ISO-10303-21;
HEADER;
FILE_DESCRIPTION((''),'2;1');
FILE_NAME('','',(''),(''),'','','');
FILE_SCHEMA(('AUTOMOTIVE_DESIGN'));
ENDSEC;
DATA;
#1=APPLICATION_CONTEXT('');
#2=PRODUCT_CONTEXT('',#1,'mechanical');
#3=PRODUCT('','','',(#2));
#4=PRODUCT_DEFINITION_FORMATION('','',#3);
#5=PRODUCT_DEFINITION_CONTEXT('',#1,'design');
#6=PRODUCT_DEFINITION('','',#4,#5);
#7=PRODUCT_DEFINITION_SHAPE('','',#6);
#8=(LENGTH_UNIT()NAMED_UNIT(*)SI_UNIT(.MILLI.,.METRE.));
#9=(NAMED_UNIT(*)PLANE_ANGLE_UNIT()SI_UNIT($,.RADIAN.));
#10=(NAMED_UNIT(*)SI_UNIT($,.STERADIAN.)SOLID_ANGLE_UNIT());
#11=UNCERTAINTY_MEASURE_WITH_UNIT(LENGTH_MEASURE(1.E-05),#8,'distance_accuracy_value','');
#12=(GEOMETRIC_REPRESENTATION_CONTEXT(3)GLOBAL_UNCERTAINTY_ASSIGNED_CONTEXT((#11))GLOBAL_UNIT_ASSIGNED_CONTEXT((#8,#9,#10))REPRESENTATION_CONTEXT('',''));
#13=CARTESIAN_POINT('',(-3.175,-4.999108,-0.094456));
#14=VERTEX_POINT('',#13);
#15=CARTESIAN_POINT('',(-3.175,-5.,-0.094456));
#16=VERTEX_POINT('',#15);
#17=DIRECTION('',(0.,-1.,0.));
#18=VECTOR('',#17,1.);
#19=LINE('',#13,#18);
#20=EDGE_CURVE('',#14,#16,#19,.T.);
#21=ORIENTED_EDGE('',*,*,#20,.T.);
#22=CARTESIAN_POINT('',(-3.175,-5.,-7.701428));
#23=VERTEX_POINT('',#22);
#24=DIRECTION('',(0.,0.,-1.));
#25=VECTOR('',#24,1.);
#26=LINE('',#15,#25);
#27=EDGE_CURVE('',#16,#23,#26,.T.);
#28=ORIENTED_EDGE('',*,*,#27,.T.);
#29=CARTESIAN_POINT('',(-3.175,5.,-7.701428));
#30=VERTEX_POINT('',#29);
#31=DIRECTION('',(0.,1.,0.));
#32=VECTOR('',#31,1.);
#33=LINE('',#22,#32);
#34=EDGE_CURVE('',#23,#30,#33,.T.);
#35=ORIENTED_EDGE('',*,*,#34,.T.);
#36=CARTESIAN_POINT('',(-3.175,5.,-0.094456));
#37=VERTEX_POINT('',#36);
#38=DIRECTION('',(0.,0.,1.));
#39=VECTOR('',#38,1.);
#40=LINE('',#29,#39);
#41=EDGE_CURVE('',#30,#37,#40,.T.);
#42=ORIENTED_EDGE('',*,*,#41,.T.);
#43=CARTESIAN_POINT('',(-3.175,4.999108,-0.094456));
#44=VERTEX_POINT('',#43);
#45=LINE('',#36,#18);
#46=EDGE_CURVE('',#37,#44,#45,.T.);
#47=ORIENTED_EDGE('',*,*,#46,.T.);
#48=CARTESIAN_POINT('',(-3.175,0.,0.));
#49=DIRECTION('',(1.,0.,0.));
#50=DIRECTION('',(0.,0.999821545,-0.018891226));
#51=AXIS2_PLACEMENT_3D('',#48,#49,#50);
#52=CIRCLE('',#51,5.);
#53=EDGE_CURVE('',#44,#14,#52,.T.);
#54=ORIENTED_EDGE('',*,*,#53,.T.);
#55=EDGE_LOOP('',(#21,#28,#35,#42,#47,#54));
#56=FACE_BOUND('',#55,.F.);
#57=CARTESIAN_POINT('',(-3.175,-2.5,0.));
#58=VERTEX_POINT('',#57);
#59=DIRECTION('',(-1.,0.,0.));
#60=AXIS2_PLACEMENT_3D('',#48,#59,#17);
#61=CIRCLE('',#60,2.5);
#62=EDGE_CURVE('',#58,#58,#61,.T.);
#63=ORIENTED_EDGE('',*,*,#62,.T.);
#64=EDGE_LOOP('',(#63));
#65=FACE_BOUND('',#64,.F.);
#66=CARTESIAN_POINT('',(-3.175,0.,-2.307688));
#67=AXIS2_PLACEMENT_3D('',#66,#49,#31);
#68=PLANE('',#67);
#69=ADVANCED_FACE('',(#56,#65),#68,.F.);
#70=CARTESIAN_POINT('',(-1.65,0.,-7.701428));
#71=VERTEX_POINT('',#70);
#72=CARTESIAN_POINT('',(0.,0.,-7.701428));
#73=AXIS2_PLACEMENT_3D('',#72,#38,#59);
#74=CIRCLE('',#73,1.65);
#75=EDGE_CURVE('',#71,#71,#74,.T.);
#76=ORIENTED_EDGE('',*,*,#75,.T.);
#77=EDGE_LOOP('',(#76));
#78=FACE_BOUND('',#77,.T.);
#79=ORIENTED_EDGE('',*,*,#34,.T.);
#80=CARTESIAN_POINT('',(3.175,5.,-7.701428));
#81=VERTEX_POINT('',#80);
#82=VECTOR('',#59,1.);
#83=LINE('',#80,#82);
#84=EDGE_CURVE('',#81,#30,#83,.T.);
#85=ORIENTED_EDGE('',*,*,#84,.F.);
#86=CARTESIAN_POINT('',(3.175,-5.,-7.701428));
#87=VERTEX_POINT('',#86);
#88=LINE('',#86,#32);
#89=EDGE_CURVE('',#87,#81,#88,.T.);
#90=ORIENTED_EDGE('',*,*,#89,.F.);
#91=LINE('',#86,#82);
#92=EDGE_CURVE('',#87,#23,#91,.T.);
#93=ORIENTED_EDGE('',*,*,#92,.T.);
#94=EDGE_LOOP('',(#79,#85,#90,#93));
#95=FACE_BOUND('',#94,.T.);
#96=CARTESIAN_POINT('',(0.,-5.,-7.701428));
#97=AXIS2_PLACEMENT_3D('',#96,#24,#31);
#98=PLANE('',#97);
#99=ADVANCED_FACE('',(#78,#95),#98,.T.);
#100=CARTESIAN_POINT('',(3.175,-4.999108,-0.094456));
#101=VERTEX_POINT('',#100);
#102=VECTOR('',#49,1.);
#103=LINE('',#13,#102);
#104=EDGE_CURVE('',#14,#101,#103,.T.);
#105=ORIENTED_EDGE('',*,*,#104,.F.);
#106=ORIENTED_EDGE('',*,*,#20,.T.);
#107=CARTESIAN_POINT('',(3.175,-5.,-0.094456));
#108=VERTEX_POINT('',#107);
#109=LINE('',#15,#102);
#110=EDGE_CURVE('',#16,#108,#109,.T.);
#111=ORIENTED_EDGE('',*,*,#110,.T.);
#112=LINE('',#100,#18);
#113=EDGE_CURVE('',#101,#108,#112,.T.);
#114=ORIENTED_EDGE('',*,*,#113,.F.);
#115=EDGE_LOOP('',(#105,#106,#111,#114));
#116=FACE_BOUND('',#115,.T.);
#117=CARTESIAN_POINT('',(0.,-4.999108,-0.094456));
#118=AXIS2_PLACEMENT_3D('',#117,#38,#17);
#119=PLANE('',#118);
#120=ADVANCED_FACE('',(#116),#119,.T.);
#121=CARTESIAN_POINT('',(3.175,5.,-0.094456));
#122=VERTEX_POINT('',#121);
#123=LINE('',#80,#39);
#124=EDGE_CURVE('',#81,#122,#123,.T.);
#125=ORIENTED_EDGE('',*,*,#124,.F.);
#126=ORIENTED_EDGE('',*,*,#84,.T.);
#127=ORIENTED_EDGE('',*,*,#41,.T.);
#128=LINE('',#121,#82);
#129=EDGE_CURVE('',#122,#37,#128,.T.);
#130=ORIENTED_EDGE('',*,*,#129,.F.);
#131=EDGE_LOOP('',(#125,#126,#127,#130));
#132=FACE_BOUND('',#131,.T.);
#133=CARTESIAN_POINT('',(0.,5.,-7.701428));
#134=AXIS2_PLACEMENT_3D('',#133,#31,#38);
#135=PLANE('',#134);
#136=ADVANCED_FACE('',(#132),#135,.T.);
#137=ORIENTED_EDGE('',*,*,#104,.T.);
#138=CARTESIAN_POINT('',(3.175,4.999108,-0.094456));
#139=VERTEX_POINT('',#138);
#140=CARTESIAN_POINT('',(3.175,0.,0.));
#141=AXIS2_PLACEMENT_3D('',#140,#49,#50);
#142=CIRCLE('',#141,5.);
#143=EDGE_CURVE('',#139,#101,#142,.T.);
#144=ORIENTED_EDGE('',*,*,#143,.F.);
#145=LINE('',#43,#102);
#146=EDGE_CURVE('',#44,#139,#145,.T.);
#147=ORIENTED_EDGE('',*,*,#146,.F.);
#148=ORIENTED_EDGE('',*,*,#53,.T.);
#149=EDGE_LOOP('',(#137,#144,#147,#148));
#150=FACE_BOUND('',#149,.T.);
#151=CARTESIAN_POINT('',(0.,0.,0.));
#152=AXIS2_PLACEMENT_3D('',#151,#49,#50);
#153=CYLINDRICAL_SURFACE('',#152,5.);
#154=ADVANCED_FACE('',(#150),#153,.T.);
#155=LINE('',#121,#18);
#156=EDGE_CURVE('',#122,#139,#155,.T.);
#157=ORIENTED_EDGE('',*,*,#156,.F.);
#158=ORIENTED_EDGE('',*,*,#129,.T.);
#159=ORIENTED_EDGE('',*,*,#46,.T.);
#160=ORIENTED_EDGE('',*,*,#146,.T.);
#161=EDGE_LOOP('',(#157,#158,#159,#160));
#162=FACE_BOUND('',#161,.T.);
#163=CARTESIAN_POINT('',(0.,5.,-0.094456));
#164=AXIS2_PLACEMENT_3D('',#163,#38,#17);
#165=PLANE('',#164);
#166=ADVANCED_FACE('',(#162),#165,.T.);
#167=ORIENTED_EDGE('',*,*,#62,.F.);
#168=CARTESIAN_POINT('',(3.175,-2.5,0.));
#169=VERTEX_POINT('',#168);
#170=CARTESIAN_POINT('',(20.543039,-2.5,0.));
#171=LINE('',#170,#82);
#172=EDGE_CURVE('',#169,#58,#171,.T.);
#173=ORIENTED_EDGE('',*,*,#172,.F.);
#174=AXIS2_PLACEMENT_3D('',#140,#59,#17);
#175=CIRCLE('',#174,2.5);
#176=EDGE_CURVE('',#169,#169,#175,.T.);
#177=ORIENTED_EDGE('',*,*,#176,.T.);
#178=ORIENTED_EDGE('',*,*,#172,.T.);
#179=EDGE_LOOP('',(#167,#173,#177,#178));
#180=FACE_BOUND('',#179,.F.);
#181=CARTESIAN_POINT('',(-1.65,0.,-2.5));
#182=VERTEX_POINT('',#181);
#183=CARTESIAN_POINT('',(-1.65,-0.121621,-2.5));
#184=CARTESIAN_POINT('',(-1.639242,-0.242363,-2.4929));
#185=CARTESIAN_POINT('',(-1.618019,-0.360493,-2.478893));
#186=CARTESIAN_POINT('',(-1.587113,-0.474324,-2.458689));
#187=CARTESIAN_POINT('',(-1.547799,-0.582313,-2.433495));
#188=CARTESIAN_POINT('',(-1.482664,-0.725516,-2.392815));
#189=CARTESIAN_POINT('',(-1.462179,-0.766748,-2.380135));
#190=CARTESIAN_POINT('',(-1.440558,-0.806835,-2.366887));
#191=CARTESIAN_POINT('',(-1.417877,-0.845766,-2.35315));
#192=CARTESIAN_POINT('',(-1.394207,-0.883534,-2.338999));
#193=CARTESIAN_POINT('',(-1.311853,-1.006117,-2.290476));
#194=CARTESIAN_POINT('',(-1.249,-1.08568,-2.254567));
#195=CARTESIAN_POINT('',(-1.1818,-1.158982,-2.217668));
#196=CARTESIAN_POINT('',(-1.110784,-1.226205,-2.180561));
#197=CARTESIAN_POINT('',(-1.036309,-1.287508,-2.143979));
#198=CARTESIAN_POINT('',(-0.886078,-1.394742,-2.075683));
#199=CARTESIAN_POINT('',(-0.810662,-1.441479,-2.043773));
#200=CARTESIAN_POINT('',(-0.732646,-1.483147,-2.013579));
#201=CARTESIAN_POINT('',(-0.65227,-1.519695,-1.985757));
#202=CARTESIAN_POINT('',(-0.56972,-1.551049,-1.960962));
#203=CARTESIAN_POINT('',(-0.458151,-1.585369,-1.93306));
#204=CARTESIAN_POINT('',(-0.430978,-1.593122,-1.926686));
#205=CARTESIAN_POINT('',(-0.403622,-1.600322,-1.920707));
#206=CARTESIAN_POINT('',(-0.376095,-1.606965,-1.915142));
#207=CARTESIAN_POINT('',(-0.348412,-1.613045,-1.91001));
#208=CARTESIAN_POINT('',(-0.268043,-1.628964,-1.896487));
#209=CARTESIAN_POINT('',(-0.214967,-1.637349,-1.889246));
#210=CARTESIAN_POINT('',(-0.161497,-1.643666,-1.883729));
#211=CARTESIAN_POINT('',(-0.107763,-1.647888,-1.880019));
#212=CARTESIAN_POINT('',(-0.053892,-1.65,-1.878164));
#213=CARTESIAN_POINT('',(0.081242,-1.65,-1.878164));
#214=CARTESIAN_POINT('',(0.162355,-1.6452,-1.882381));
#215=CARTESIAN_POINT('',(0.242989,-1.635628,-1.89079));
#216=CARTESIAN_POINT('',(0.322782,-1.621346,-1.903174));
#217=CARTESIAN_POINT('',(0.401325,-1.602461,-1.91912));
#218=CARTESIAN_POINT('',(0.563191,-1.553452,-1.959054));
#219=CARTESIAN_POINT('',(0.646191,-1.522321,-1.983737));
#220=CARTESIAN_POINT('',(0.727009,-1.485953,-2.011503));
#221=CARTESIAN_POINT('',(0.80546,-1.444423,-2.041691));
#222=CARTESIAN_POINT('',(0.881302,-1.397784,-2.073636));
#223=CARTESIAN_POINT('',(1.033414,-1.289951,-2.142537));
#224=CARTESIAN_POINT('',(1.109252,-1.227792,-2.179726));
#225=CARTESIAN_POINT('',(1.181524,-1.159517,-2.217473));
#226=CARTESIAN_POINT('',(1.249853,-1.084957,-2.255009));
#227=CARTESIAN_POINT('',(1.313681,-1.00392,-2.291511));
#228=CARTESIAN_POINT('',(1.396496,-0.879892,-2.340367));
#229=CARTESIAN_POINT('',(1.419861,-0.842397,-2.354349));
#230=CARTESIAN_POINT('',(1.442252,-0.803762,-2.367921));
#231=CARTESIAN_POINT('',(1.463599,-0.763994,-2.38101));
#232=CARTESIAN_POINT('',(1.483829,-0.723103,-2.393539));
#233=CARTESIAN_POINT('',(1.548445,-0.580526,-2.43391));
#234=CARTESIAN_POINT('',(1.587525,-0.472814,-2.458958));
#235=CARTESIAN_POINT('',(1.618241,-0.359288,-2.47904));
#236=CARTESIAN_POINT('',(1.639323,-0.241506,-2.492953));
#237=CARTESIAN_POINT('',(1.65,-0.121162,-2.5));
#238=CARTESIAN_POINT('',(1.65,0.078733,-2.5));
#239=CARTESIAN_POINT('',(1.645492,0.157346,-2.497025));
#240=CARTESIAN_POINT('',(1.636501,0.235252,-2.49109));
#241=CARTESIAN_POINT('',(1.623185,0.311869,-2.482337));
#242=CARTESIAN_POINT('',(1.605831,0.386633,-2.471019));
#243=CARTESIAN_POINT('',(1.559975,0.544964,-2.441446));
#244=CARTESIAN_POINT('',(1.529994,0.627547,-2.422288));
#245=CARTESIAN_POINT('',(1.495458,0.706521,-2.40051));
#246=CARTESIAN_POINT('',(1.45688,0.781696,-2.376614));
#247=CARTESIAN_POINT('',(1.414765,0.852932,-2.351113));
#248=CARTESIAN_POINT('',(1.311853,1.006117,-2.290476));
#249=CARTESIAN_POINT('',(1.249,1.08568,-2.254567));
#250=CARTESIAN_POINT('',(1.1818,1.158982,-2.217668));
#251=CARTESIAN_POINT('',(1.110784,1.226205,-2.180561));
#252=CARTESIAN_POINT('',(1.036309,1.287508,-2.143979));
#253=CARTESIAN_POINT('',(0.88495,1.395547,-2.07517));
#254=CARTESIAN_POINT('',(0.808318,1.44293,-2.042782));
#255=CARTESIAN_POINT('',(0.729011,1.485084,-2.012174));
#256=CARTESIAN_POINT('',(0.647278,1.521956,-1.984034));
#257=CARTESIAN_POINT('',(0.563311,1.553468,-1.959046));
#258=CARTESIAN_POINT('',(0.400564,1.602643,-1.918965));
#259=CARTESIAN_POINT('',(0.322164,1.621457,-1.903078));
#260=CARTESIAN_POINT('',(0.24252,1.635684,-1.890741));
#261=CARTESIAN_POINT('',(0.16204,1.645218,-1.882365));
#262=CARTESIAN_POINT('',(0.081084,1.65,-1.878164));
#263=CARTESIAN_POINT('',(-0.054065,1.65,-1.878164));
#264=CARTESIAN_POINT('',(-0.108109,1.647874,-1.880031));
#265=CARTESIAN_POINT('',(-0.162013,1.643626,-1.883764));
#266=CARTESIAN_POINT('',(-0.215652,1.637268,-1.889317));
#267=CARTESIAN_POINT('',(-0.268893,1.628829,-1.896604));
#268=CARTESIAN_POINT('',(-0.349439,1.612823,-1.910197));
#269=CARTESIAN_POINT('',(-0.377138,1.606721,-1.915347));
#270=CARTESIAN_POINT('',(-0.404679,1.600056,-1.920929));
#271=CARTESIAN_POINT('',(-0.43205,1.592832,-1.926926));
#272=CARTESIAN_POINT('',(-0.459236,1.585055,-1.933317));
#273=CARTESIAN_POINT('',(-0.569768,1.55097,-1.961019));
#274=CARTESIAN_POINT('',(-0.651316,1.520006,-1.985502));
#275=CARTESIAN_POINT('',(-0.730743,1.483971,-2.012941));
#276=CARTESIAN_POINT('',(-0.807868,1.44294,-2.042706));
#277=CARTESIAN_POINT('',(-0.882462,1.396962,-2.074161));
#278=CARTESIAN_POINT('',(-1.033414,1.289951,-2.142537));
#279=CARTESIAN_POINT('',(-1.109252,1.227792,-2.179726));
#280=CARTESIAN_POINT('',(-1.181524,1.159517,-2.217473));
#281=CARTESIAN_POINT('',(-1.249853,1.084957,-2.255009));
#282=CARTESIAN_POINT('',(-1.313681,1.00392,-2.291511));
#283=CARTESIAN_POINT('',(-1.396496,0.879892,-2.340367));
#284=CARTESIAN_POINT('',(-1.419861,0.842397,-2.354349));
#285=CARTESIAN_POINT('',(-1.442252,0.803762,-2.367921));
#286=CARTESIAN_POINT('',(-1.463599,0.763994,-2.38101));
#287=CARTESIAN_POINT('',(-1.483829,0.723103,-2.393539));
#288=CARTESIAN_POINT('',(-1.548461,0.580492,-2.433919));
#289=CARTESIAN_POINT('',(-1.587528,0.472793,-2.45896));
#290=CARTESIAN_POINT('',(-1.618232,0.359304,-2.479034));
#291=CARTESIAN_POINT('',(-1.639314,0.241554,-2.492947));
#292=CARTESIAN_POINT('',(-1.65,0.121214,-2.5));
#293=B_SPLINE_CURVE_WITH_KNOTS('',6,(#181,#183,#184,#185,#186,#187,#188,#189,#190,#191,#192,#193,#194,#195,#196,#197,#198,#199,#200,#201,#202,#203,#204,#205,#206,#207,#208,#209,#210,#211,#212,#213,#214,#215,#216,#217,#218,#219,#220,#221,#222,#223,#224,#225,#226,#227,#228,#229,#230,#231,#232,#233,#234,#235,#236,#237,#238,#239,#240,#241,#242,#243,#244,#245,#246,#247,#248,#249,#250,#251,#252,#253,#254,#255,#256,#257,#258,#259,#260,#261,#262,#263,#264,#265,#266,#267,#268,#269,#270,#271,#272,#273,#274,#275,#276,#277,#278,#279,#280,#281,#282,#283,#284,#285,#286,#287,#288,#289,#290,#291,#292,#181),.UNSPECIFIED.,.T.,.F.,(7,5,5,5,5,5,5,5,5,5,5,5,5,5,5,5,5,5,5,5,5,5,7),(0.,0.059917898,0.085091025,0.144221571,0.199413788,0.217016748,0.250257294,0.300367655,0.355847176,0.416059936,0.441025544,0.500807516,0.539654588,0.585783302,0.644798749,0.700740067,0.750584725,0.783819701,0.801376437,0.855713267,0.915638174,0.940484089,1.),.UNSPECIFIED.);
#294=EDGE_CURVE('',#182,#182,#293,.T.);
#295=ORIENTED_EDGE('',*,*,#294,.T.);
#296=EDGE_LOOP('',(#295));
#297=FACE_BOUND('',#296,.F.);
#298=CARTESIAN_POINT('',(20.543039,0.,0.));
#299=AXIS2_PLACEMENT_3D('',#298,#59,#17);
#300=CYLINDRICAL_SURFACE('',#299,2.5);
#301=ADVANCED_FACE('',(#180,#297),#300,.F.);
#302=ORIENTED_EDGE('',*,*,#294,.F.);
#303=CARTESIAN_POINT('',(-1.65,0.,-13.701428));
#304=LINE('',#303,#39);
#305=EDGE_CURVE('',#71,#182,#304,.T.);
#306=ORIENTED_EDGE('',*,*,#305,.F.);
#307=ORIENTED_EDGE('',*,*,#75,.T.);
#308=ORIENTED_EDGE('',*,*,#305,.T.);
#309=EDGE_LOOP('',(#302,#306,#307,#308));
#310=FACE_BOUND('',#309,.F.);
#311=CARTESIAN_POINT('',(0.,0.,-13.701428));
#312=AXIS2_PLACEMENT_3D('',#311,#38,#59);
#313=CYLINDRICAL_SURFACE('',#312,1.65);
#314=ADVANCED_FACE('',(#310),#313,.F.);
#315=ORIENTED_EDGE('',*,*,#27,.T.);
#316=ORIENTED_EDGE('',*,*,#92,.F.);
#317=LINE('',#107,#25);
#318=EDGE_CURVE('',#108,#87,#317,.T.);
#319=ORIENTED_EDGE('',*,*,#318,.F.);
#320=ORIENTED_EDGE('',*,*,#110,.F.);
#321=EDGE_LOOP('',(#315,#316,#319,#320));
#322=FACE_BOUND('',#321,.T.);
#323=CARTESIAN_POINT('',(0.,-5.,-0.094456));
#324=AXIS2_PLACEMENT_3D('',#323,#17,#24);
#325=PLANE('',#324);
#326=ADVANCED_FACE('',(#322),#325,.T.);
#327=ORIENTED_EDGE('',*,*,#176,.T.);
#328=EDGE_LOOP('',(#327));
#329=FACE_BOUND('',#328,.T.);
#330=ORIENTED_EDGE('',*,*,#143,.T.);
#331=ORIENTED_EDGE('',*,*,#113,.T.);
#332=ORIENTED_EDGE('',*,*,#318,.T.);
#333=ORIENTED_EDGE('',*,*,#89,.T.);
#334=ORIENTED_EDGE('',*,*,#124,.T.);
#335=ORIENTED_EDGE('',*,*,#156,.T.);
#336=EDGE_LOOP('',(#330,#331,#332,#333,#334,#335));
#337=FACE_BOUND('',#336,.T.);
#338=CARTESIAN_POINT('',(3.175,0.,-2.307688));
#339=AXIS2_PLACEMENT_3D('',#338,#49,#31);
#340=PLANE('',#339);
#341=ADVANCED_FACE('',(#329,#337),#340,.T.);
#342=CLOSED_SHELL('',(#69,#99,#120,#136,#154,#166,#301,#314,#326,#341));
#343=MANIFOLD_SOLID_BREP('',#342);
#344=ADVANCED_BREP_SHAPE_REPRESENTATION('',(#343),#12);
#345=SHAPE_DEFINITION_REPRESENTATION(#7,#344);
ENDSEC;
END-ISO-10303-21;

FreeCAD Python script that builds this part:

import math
import FreeCAD as App
import Part
import Sketcher

V = App.Vector
Q = App.Units.Quantity

doc = App.newDocument("Part")
params = doc.addObject("Spreadsheet::Sheet", "Params")
for row, (alias, value) in enumerate([
    ("sketch1_radius", "5 mm"),
    ("sketch1_width", "10 mm"),
    ("pad1_length", "6.35 mm"),
    ("sketch2_diameter", "5 mm"),
    ("hole_diameter", "5 mm"),
    ("sketch3_diameter", "3.3 mm"),
    ("hole2_diameter", "3.3 mm"),
    ("hole2_depth", "6 mm"),
], start=1):
    params.set(f"A{row}", alias)
    params.set(f"B{row}", "=" + value)
    params.setAlias(f"B{row}", alias)

body = doc.addObject("PartDesign::Body", "Body")

sketch1 = doc.addObject("Sketcher::SketchObject", "Sketch")
body.addObject(sketch1)
sketch1.AttachmentSupport = (doc.YZ_Plane, [""])
sketch1.MapMode = "FlatFace"
sketch1.addGeometry(Part.LineSegment(V(5, -0.0945, 0), V(4.9991, -0.0945, 0)), False)
sketch1.addGeometry(Part.ArcOfCircle(Part.Circle(V(0, 0, 0), V(0, 0, 1), 5), math.radians(-1), math.radians(181)), False)
sketch1.addGeometry(Part.LineSegment(V(-4.9991, -0.0945, 0), V(-5, -0.0945, 0)), False)
sketch1.addGeometry(Part.LineSegment(V(-5, -0.0945, 0), V(-5, -7.7014, 0)), False)
sketch1.addGeometry(Part.LineSegment(V(-5, -7.7014, 0), V(5, -7.7014, 0)), False)
sketch1.addGeometry(Part.LineSegment(V(5, -7.7014, 0), V(5, -0.0945, 0)), False)
sketch1.addConstraint(Sketcher.Constraint("Coincident", 0, 2, 1, 1))
sketch1.addConstraint(Sketcher.Constraint("Coincident", 1, 2, 2, 1))
sketch1.addConstraint(Sketcher.Constraint("Coincident", 2, 2, 3, 1))
sketch1.addConstraint(Sketcher.Constraint("Coincident", 3, 2, 4, 1))
sketch1.addConstraint(Sketcher.Constraint("Coincident", 4, 2, 5, 1))
sketch1.addConstraint(Sketcher.Constraint("Coincident", 5, 2, 0, 1))
sketch1.addConstraint(Sketcher.Constraint("Horizontal", 0))
sketch1.addConstraint(Sketcher.Constraint("Horizontal", 2))
sketch1.addConstraint(Sketcher.Constraint("Vertical", 3))
sketch1.addConstraint(Sketcher.Constraint("Horizontal", 4))
sketch1.addConstraint(Sketcher.Constraint("Vertical", 5))
sketch1.addConstraint(Sketcher.Constraint("Coincident", 1, 3, -1, 1))
sketch1.addConstraint(Sketcher.Constraint("Symmetric", 2, 2, 5, 2, -2))
sketch1.addConstraint(Sketcher.Constraint("Radius", 1, Q("5 mm")))
sketch1.addConstraint(Sketcher.Constraint("DistanceX", 4, 1, 4, 2, Q("10 mm")))
sketch1.addConstraint(Sketcher.Constraint("DistanceX", 0, 2, 0, 1, Q("0.000892 mm")))
sketch1.addConstraint(Sketcher.Constraint("DistanceY", 3, 2, 3, 1, Q("7.606972 mm")))
sketch1.setExpression("Constraints[13]", "Params.sketch1_radius")
sketch1.setExpression("Constraints[14]", "Params.sketch1_width")
pad1 = doc.addObject("PartDesign::Pad", "Pad")
body.addObject(pad1)
pad1.Profile = sketch1
pad1.setExpression("Length", "Params.pad1_length")
pad1.Midplane = True

sketch2 = doc.addObject("Sketcher::SketchObject", "Sketch001")
body.addObject(sketch2)
sketch2.AttachmentSupport = (doc.YZ_Plane, [""])
sketch2.MapMode = "FlatFace"
sketch2.AttachmentOffset = App.Placement(V(0, 0, 3.175), App.Rotation())
sketch2.addGeometry(Part.Circle(V(0, 0, 0), V(0, 0, 1), 2.5), False)
sketch2.addConstraint(Sketcher.Constraint("Coincident", 0, 3, -1, 1))
sketch2.addConstraint(Sketcher.Constraint("Diameter", 0, Q("5 mm")))
sketch2.setExpression("Constraints[1]", "Params.sketch2_diameter")
doc.recompute()
hole = doc.addObject("PartDesign::Hole", "Hole")
body.addObject(hole)
hole.Profile = sketch2
hole.ThreadType = "None"
hole.setExpression("Diameter", "Params.hole_diameter")
hole.DepthType = "ThroughAll"

sketch3 = doc.addObject("Sketcher::SketchObject", "Sketch002")
body.addObject(sketch3)
sketch3.AttachmentSupport = (doc.XY_Plane, [""])
sketch3.MapMode = "FlatFace"
sketch3.AttachmentOffset = App.Placement(V(0, 0, -7.701428), App.Rotation())
sketch3.addGeometry(Part.Circle(V(0, 0, 0), V(0, 0, 1), 1.6), False)
sketch3.addConstraint(Sketcher.Constraint("Coincident", 0, 3, -1, 1))
sketch3.addConstraint(Sketcher.Constraint("Diameter", 0, Q("3.3 mm")))
sketch3.setExpression("Constraints[1]", "Params.sketch3_diameter")
doc.recompute()
hole2 = doc.addObject("PartDesign::Hole", "Hole001")
body.addObject(hole2)
hole2.Profile = sketch3
hole2.ThreadType = "None"
hole2.setExpression("Diameter", "Params.hole2_diameter")
hole2.DepthType = "Dimension"
hole2.setExpression("Depth", "Params.hole2_depth")
hole2.DrillPoint = "Angled"
hole2.DrillPointAngle = 118
hole2.Reversed = True

doc.recompute()
